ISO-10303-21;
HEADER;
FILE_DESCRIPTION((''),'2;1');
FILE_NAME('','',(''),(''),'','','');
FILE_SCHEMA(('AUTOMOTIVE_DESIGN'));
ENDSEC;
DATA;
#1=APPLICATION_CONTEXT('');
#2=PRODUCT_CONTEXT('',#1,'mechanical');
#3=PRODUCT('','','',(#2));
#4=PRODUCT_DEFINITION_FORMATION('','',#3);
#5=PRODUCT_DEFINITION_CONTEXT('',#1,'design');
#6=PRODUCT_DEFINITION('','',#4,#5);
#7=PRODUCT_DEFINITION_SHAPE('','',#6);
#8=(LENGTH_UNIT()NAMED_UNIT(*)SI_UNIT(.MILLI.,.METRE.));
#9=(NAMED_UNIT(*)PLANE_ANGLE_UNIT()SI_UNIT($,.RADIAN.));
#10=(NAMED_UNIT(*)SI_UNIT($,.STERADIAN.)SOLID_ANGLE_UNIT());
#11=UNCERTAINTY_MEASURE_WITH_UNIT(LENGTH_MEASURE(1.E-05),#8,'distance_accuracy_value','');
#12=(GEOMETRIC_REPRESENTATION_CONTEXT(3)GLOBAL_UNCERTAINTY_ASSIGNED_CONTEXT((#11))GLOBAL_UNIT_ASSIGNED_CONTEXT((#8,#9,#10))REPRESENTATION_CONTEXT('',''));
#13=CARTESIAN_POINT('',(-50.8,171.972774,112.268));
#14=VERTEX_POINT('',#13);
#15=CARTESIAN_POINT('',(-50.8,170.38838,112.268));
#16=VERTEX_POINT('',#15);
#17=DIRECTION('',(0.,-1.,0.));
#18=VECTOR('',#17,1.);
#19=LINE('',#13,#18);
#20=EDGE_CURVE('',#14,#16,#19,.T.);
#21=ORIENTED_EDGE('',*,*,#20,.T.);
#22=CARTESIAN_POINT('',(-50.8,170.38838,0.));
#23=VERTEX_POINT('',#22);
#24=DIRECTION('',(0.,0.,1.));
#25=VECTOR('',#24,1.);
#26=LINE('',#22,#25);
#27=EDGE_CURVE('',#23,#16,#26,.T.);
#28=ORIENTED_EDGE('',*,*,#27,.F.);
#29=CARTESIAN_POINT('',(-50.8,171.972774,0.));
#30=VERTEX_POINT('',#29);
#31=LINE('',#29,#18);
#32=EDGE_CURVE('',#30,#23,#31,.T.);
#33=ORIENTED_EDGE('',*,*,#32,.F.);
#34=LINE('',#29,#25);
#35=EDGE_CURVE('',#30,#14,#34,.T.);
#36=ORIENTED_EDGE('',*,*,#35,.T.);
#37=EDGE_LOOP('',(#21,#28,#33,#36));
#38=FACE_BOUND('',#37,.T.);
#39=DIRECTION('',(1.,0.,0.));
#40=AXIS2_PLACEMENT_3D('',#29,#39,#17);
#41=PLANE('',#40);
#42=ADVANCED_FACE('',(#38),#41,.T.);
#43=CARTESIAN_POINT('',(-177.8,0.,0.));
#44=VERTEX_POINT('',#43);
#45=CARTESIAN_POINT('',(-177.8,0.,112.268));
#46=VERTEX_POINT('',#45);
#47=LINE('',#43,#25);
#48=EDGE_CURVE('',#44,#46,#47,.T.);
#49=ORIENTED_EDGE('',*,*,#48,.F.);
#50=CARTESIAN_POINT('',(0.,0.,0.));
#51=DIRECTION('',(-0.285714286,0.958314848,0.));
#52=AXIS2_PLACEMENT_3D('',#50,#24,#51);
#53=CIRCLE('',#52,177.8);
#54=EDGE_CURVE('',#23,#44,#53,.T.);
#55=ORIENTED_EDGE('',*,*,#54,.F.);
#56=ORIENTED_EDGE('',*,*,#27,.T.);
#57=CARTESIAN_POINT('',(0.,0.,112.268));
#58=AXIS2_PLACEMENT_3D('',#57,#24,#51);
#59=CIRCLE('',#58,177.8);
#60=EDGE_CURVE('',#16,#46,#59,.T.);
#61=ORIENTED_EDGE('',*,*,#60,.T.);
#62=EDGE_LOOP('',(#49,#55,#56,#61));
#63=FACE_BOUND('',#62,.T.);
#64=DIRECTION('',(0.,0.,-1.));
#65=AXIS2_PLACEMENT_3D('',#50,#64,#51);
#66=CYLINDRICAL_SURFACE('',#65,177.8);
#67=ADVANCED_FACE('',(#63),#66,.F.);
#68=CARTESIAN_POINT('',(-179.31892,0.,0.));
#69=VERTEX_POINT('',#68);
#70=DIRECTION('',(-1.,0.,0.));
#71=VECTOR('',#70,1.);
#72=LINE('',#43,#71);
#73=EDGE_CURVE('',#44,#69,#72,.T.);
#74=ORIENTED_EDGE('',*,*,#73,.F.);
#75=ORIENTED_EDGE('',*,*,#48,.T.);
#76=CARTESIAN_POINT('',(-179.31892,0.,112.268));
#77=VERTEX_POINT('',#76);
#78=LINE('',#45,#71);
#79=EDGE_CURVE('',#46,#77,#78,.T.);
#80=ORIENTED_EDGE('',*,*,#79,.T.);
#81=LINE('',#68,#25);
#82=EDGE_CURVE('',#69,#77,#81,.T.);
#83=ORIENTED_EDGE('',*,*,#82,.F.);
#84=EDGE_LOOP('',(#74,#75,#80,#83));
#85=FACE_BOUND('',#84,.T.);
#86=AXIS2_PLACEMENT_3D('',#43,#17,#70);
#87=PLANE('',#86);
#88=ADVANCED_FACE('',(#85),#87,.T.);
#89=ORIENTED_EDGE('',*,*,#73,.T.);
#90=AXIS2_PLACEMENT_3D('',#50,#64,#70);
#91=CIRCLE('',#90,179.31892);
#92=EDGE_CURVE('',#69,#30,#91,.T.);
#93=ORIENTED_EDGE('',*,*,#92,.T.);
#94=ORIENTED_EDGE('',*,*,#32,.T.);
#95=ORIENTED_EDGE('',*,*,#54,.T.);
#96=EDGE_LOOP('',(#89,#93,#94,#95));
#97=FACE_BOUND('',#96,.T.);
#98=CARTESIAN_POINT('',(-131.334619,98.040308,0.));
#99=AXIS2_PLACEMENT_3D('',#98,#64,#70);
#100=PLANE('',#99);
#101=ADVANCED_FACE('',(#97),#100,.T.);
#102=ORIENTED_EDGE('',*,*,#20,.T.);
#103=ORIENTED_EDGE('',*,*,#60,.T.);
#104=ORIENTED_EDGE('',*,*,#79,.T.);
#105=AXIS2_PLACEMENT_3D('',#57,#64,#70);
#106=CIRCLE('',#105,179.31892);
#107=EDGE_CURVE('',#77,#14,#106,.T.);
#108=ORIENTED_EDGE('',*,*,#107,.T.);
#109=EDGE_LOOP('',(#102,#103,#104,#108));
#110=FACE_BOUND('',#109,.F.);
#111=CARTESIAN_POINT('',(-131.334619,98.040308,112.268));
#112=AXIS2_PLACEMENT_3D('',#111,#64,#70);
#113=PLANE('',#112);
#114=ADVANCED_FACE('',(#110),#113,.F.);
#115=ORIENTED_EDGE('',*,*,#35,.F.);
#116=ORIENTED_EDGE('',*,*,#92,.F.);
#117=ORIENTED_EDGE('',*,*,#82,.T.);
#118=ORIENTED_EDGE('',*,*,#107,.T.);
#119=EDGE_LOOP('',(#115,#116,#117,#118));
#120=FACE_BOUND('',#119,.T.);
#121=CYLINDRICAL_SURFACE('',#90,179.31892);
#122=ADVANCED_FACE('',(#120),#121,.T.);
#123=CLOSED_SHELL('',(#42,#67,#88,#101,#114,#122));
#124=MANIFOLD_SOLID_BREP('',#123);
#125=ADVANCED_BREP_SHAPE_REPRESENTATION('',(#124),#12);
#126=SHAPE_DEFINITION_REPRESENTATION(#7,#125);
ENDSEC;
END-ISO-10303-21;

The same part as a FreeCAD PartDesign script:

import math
import FreeCAD as App
import Part
import Sketcher

V = App.Vector
Q = App.Units.Quantity

doc = App.newDocument("Part")
body = doc.addObject("PartDesign::Body", "Body")

# Sketch on XY plane
sketch1 = body.newObject("Sketcher::SketchObject", "Sketch")
sketch1.AttachmentSupport = (doc.getObject("XY_Plane"), [""])
sketch1.MapMode = "FlatFace"
sketch1.addGeometry(Part.LineSegment(V(-50.8, 170.4, 0), V(-50.8, 172, 0)), False)
sketch1.addGeometry(Part.ArcOfCircle(Part.Circle(V(0, 0, 0), V(0, 0, 1), 179.3), math.radians(106), math.radians(180)), False)
sketch1.addGeometry(Part.LineSegment(V(-179.3, 0, 0), V(-177.8, 0, 0)), False)
sketch1.addGeometry(Part.ArcOfCircle(Part.Circle(V(0, 0, 0), V(0, 0, 1), 177.8), math.radians(107), math.radians(180)), False)
sketch1.addConstraint(Sketcher.Constraint("Coincident", 0, 2, 1, 1))
sketch1.addConstraint(Sketcher.Constraint("Coincident", 1, 2, 2, 1))
sketch1.addConstraint(Sketcher.Constraint("Coincident", 2, 2, 3, 2))
sketch1.addConstraint(Sketcher.Constraint("Coincident", 3, 1, 0, 1))
sketch1.addConstraint(Sketcher.Constraint("Vertical", 0))
sketch1.addConstraint(Sketcher.Constraint("Horizontal", 2))
sketch1.addConstraint(Sketcher.Constraint("Coincident", 1, 3, -1, 1))
sketch1.addConstraint(Sketcher.Constraint("Coincident", 3, 3, -1, 1))
sketch1.addConstraint(Sketcher.Constraint("PointOnObject", 1, 2, -1))
sketch1.addConstraint(Sketcher.Constraint("Radius", 3, Q("7 in")))
sketch1.addConstraint(Sketcher.Constraint("DistanceX", 0, 2, -1, 1, Q("2 in")))
sketch1.addConstraint(Sketcher.Constraint("Radius", 1, Q("7.0598 in")))
pad1 = body.newObject("PartDesign::Pad", "Pad")
pad1.Profile = sketch1
pad1.Length = Q("4.42 in")

doc.recompute()
